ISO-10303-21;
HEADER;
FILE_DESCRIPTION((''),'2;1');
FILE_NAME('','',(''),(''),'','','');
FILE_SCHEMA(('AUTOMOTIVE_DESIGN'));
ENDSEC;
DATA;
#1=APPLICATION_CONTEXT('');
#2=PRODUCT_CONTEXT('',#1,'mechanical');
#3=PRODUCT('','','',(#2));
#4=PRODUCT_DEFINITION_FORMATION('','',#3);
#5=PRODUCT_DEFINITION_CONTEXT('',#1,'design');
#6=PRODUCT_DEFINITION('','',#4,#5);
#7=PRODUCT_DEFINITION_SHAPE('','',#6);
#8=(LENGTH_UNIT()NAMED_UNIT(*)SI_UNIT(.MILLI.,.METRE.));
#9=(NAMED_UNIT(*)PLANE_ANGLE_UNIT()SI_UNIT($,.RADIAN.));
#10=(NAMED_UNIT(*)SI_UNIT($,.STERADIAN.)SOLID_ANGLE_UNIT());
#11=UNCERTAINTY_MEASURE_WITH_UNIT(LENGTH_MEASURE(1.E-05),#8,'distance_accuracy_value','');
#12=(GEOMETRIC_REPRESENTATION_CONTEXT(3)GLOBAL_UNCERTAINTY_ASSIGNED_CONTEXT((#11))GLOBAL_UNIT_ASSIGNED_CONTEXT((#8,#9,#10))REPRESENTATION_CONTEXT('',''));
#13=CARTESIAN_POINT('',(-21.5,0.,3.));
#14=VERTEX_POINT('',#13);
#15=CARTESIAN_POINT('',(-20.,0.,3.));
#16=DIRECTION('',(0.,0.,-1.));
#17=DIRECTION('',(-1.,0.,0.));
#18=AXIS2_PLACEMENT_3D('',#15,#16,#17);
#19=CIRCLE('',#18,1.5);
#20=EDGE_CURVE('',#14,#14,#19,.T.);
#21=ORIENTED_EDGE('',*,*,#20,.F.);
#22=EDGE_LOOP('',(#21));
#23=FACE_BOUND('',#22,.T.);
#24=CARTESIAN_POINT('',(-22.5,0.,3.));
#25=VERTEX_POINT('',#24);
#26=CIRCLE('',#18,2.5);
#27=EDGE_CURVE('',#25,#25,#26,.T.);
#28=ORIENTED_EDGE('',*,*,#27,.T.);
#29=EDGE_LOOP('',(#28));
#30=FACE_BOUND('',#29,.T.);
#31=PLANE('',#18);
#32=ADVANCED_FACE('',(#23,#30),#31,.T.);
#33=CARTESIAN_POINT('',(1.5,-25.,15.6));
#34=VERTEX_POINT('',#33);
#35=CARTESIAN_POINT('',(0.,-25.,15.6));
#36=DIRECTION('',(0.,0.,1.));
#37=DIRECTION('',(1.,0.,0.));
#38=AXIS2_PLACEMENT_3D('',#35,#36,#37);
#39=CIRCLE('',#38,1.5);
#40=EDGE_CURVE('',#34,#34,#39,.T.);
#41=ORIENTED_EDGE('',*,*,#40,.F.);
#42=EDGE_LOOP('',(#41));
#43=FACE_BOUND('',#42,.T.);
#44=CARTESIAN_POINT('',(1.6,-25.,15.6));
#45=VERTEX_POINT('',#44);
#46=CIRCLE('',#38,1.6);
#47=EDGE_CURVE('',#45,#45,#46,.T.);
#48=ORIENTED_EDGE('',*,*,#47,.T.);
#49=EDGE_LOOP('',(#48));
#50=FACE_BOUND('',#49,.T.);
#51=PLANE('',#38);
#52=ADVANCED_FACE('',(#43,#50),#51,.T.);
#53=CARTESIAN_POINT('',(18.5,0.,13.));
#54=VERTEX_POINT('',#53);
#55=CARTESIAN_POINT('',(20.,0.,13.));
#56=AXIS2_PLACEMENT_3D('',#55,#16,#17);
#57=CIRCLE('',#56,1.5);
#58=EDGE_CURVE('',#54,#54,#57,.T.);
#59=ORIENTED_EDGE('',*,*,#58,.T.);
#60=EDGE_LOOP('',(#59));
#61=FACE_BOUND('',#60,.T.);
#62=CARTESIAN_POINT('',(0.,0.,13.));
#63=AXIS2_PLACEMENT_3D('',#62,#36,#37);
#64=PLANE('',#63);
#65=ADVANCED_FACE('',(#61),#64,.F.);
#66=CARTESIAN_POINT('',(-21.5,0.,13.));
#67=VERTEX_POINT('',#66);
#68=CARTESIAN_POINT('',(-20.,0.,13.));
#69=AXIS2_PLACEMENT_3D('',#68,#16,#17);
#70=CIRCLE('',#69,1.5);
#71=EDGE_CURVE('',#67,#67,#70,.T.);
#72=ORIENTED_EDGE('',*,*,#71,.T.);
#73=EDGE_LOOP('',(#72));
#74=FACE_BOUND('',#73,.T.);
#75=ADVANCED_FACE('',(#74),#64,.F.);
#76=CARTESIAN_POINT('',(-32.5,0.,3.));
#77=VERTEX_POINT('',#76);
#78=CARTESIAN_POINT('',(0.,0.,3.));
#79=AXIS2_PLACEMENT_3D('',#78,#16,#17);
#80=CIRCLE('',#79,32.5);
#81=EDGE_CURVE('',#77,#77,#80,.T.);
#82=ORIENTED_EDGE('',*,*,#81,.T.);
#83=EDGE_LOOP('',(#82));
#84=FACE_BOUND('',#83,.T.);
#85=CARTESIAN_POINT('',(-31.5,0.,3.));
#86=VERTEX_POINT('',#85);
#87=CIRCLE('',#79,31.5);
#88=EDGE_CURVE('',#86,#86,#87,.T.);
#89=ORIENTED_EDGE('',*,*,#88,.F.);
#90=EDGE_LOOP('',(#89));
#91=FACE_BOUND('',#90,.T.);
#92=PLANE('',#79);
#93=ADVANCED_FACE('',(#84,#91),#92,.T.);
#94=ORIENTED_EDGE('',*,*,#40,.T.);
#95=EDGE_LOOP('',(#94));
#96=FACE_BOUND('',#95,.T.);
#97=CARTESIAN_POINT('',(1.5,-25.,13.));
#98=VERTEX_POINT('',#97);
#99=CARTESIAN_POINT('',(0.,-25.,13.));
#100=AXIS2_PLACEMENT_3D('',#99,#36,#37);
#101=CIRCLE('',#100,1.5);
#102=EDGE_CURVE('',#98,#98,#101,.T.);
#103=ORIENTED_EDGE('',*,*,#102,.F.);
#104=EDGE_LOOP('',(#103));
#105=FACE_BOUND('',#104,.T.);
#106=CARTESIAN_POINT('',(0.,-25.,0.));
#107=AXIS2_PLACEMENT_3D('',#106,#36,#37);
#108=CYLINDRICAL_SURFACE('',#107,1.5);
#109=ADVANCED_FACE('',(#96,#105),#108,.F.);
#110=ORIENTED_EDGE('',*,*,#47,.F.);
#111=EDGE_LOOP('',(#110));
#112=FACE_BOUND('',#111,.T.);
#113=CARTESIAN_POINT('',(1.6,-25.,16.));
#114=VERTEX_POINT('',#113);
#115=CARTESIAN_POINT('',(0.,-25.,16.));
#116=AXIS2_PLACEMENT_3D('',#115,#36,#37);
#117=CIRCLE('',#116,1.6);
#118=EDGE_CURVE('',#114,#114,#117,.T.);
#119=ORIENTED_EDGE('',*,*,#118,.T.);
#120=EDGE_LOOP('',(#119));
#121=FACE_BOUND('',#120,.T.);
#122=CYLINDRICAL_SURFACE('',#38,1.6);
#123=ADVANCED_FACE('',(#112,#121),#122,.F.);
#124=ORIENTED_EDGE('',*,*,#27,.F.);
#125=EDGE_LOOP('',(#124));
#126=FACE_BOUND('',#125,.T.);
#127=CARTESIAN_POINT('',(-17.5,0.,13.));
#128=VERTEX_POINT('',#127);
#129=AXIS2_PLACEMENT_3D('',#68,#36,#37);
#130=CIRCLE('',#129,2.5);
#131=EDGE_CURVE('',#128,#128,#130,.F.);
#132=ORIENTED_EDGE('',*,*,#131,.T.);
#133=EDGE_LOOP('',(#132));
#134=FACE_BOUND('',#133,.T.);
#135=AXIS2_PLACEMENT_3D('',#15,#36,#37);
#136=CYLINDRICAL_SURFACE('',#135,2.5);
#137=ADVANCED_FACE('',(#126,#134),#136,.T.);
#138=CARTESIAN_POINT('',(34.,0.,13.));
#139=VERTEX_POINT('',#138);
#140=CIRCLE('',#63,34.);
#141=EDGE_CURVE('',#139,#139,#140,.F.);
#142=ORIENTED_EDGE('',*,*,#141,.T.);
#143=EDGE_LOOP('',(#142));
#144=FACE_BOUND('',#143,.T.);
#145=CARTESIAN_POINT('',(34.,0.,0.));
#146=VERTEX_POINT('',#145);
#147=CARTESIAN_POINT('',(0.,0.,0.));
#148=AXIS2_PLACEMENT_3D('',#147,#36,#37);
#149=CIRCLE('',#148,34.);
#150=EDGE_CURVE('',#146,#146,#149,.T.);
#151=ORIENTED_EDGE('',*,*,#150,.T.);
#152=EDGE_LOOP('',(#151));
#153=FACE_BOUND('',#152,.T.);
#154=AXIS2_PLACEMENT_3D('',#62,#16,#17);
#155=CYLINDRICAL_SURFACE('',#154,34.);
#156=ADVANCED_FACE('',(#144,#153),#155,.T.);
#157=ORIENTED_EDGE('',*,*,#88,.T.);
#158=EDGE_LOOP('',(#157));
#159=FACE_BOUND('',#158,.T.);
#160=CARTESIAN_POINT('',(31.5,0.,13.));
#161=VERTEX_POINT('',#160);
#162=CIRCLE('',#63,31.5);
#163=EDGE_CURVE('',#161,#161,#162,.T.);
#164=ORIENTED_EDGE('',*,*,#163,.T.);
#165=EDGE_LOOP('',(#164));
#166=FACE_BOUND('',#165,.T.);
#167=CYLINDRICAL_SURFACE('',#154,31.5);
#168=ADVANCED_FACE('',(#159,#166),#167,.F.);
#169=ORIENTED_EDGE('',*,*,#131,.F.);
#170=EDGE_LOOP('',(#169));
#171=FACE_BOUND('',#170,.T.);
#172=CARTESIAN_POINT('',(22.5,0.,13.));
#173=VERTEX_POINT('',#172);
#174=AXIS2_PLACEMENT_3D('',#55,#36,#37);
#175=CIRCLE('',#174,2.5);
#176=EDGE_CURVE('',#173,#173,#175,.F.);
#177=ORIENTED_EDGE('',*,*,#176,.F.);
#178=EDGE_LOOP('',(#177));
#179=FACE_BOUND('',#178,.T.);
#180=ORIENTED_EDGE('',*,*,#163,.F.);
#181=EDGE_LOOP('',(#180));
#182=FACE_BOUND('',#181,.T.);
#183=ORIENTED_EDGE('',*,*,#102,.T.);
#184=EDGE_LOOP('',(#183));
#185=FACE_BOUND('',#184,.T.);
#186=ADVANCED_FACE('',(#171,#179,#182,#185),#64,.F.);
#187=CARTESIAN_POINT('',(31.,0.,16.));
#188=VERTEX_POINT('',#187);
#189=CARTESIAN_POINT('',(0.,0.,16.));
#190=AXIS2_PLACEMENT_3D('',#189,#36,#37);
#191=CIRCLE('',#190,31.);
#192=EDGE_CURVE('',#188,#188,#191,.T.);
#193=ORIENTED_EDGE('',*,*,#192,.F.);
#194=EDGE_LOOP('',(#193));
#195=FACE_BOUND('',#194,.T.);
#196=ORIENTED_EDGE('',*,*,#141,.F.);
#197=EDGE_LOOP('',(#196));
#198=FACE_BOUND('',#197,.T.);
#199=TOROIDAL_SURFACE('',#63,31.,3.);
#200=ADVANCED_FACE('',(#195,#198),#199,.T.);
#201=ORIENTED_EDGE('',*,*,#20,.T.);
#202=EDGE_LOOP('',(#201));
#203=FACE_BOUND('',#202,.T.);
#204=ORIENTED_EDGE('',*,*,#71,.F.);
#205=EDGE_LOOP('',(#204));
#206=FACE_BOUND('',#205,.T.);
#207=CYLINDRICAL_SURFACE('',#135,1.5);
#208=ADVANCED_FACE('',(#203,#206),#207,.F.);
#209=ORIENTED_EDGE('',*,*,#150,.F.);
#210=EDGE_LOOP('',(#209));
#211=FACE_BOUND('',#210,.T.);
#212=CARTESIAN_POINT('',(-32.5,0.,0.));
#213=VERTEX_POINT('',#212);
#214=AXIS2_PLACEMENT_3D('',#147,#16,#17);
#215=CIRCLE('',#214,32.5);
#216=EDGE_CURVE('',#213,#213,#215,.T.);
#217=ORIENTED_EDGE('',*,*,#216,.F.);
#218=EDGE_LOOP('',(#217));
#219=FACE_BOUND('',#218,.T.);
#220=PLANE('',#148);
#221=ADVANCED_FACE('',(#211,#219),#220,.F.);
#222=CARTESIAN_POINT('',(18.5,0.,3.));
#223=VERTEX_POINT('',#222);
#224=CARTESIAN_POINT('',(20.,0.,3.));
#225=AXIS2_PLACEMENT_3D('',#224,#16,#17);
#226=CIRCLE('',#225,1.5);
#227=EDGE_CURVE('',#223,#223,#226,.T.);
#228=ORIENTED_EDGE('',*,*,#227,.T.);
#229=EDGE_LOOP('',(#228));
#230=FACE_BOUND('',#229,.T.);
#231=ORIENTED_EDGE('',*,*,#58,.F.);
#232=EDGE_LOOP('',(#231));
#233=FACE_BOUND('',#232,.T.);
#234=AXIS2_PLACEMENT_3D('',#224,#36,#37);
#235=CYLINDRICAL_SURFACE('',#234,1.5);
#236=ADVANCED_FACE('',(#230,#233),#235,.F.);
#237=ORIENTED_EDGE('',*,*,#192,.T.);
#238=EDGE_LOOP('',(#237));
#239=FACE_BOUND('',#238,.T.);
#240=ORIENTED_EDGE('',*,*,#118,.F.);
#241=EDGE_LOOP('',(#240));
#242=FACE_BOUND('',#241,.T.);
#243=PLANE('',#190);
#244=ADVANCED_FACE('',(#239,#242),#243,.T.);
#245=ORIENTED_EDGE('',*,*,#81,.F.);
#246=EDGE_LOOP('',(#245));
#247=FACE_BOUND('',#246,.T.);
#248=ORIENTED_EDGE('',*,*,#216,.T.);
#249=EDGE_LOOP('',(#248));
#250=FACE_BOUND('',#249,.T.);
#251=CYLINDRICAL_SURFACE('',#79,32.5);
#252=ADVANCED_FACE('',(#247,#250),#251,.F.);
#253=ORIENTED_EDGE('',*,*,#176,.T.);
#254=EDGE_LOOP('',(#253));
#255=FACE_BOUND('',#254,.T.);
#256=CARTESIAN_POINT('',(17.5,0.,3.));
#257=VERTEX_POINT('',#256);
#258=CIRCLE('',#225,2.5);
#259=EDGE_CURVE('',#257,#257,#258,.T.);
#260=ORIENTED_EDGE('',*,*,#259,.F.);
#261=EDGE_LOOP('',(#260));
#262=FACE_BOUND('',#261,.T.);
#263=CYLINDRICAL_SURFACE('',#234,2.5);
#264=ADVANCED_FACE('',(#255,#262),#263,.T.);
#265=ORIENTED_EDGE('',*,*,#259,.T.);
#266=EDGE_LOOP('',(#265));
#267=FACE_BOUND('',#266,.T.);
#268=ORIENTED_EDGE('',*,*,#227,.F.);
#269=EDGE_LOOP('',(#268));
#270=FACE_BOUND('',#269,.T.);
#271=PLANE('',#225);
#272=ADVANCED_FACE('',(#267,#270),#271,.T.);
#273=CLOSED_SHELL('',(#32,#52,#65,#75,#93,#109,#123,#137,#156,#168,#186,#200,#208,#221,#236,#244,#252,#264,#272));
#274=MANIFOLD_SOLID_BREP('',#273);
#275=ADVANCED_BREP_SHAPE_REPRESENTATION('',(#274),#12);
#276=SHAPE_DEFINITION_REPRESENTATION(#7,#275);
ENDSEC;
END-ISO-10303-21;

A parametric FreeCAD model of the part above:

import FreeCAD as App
import Part
import Sketcher
from FreeCAD import Vector


def edges_at(feature, points):
    """Names of the edges that pass closest to the given points."""
    edges = feature.Shape.Edges
    near = lambda p: min(range(len(edges)), key=lambda i: edges[i].distToShape(Part.Vertex(*p))[0])
    return sorted({f"Edge{near(p) + 1}" for p in points})

doc = App.newDocument("Part")
body = doc.addObject("PartDesign::Body", "Body")

# Sketch on XY plane
sketch1 = body.newObject("Sketcher::SketchObject", "Sketch")
sketch1.AttachmentSupport = (doc.getObject("XY_Plane"), [""])
sketch1.MapMode = "FlatFace"
sketch1.addGeometry(Part.Circle(Vector(0, 0, 0), Vector(0, 0, 1), 34), False)
sketch1.addGeometry(Part.Circle(Vector(0, 0, 0), Vector(0, 0, 1), 32), False)
sketch1.addConstraint(Sketcher.Constraint("Coincident", 0, 3, -1, 1))
sketch1.addConstraint(Sketcher.Constraint("Coincident", 1, 3, -1, 1))
sketch1.addConstraint(Sketcher.Constraint("Diameter", 0, 68.0))
sketch1.addConstraint(Sketcher.Constraint("Diameter", 1, 63.0))
pad1 = body.newObject("PartDesign::Pad", "Pad")
pad1.Profile = sketch1
pad1.Length = 13

# Sketch on XY plane
sketch2 = body.newObject("Sketcher::SketchObject", "Sketch001")
sketch2.AttachmentSupport = (doc.getObject("XY_Plane"), [""])
sketch2.MapMode = "FlatFace"
sketch2.AttachmentOffset = App.Placement(Vector(0, 0, 13), App.Rotation())
sketch2.addGeometry(Part.Circle(Vector(0, 0, 0), Vector(0, 0, 1), 34), False)
sketch2.addConstraint(Sketcher.Constraint("Coincident", 0, 3, -1, 1))
sketch2.addConstraint(Sketcher.Constraint("Diameter", 0, 68.0))
pad2 = body.newObject("PartDesign::Pad", "Pad001")
pad2.Profile = sketch2
pad2.Length = 3
doc.recompute()

fillet = body.newObject("PartDesign::Fillet", "Fillet")
fillet.Base = (pad2, edges_at(pad2, [(-34, 0, 16)]))
fillet.Radius = 3

# Sketch on XY plane
sketch3 = body.newObject("Sketcher::SketchObject", "Sketch002")
sketch3.AttachmentSupport = (doc.getObject("XY_Plane"), [""])
sketch3.MapMode = "FlatFace"
sketch3.AttachmentOffset = App.Placement(Vector(0, 0, 13), App.Rotation())
sketch3.addGeometry(Part.Circle(Vector(20, 0, 0), Vector(0, 0, 1), 2.5), False)
sketch3.addGeometry(Part.Circle(Vector(20, 0, 0), Vector(0, 0, 1), 1.5), False)
sketch3.addGeometry(Part.Circle(Vector(-20, 0, 0), Vector(0, 0, 1), 2.5), False)
sketch3.addGeometry(Part.Circle(Vector(-20, 0, 0), Vector(0, 0, 1), 1.5), False)
sketch3.addConstraint(Sketcher.Constraint("Coincident", 1, 3, 0, 3))
sketch3.addConstraint(Sketcher.Constraint("Coincident", 3, 3, 2, 3))
sketch3.addConstraint(Sketcher.Constraint("Equal", 0, 2))
sketch3.addConstraint(Sketcher.Constraint("Equal", 1, 3))
sketch3.addConstraint(Sketcher.Constraint("Symmetric", 0, 3, 2, 3, -1, 1))
sketch3.addConstraint(Sketcher.Constraint("PointOnObject", 0, 3, -1))
sketch3.addConstraint(Sketcher.Constraint("Diameter", 0, 5.0))
sketch3.addConstraint(Sketcher.Constraint("Diameter", 1, 3.0))
sketch3.addConstraint(Sketcher.Constraint("DistanceX", -1, 1, 0, 3, 20.0))
pad3 = body.newObject("PartDesign::Pad", "Pad002")
pad3.Profile = sketch3
pad3.Length = 10
pad3.Reversed = True

# Sketch on XY plane
sketch4 = body.newObject("Sketcher::SketchObject", "Sketch003")
sketch4.AttachmentSupport = (doc.getObject("XY_Plane"), [""])
sketch4.MapMode = "FlatFace"
sketch4.addGeometry(Part.Circle(Vector(0, 0, 0), Vector(0, 0, 1), 32), False)
sketch4.addGeometry(Part.Circle(Vector(0, 0, 0), Vector(0, 0, 1), 32), False)
sketch4.addConstraint(Sketcher.Constraint("Coincident", 0, 3, -1, 1))
sketch4.addConstraint(Sketcher.Constraint("Coincident", 1, 3, -1, 1))
sketch4.addConstraint(Sketcher.Constraint("Diameter", 0, 65.0))
sketch4.addConstraint(Sketcher.Constraint("Diameter", 1, 63.0))
pocket1 = body.newObject("PartDesign::Pocket", "Pocket")
pocket1.Profile = sketch4
pocket1.Length = 3
pocket1.Reversed = True

# Sketch on XY plane
sketch5 = body.newObject("Sketcher::SketchObject", "Sketch004")
sketch5.AttachmentSupport = (doc.getObject("XY_Plane"), [""])
sketch5.MapMode = "FlatFace"
sketch5.AttachmentOffset = App.Placement(Vector(0, 0, 16), App.Rotation())
sketch5.addGeometry(Part.Circle(Vector(0, -25, 0), Vector(0, 0, 1), 1.6), False)
sketch5.addConstraint(Sketcher.Constraint("PointOnObject", 0, 3, -2))
sketch5.addConstraint(Sketcher.Constraint("Diameter", 0, 3.2))
sketch5.addConstraint(Sketcher.Constraint("DistanceY", 0, 3, -1, 1, 25.0))
pocket2 = body.newObject("PartDesign::Pocket", "Pocket001")
pocket2.Profile = sketch5
pocket2.Length = 0.4

# Sketch on XY plane
sketch6 = body.newObject("Sketcher::SketchObject", "Sketch005")
sketch6.AttachmentSupport = (doc.getObject("XY_Plane"), [""])
sketch6.MapMode = "FlatFace"
sketch6.AttachmentOffset = App.Placement(Vector(0, 0, 15.6), App.Rotation())
sketch6.addGeometry(Part.Circle(Vector(0, -25, 0), Vector(0, 0, 1), 1.5), False)
sketch6.addConstraint(Sketcher.Constraint("PointOnObject", 0, 3, -2))
sketch6.addConstraint(Sketcher.Constraint("Diameter", 0, 3.0))
sketch6.addConstraint(Sketcher.Constraint("DistanceY", 0, 3, -1, 1, 25.0))
pocket3 = body.newObject("PartDesign::Pocket", "Pocket002")
pocket3.Profile = sketch6
pocket3.Type = "ThroughAll"

doc.recompute()
